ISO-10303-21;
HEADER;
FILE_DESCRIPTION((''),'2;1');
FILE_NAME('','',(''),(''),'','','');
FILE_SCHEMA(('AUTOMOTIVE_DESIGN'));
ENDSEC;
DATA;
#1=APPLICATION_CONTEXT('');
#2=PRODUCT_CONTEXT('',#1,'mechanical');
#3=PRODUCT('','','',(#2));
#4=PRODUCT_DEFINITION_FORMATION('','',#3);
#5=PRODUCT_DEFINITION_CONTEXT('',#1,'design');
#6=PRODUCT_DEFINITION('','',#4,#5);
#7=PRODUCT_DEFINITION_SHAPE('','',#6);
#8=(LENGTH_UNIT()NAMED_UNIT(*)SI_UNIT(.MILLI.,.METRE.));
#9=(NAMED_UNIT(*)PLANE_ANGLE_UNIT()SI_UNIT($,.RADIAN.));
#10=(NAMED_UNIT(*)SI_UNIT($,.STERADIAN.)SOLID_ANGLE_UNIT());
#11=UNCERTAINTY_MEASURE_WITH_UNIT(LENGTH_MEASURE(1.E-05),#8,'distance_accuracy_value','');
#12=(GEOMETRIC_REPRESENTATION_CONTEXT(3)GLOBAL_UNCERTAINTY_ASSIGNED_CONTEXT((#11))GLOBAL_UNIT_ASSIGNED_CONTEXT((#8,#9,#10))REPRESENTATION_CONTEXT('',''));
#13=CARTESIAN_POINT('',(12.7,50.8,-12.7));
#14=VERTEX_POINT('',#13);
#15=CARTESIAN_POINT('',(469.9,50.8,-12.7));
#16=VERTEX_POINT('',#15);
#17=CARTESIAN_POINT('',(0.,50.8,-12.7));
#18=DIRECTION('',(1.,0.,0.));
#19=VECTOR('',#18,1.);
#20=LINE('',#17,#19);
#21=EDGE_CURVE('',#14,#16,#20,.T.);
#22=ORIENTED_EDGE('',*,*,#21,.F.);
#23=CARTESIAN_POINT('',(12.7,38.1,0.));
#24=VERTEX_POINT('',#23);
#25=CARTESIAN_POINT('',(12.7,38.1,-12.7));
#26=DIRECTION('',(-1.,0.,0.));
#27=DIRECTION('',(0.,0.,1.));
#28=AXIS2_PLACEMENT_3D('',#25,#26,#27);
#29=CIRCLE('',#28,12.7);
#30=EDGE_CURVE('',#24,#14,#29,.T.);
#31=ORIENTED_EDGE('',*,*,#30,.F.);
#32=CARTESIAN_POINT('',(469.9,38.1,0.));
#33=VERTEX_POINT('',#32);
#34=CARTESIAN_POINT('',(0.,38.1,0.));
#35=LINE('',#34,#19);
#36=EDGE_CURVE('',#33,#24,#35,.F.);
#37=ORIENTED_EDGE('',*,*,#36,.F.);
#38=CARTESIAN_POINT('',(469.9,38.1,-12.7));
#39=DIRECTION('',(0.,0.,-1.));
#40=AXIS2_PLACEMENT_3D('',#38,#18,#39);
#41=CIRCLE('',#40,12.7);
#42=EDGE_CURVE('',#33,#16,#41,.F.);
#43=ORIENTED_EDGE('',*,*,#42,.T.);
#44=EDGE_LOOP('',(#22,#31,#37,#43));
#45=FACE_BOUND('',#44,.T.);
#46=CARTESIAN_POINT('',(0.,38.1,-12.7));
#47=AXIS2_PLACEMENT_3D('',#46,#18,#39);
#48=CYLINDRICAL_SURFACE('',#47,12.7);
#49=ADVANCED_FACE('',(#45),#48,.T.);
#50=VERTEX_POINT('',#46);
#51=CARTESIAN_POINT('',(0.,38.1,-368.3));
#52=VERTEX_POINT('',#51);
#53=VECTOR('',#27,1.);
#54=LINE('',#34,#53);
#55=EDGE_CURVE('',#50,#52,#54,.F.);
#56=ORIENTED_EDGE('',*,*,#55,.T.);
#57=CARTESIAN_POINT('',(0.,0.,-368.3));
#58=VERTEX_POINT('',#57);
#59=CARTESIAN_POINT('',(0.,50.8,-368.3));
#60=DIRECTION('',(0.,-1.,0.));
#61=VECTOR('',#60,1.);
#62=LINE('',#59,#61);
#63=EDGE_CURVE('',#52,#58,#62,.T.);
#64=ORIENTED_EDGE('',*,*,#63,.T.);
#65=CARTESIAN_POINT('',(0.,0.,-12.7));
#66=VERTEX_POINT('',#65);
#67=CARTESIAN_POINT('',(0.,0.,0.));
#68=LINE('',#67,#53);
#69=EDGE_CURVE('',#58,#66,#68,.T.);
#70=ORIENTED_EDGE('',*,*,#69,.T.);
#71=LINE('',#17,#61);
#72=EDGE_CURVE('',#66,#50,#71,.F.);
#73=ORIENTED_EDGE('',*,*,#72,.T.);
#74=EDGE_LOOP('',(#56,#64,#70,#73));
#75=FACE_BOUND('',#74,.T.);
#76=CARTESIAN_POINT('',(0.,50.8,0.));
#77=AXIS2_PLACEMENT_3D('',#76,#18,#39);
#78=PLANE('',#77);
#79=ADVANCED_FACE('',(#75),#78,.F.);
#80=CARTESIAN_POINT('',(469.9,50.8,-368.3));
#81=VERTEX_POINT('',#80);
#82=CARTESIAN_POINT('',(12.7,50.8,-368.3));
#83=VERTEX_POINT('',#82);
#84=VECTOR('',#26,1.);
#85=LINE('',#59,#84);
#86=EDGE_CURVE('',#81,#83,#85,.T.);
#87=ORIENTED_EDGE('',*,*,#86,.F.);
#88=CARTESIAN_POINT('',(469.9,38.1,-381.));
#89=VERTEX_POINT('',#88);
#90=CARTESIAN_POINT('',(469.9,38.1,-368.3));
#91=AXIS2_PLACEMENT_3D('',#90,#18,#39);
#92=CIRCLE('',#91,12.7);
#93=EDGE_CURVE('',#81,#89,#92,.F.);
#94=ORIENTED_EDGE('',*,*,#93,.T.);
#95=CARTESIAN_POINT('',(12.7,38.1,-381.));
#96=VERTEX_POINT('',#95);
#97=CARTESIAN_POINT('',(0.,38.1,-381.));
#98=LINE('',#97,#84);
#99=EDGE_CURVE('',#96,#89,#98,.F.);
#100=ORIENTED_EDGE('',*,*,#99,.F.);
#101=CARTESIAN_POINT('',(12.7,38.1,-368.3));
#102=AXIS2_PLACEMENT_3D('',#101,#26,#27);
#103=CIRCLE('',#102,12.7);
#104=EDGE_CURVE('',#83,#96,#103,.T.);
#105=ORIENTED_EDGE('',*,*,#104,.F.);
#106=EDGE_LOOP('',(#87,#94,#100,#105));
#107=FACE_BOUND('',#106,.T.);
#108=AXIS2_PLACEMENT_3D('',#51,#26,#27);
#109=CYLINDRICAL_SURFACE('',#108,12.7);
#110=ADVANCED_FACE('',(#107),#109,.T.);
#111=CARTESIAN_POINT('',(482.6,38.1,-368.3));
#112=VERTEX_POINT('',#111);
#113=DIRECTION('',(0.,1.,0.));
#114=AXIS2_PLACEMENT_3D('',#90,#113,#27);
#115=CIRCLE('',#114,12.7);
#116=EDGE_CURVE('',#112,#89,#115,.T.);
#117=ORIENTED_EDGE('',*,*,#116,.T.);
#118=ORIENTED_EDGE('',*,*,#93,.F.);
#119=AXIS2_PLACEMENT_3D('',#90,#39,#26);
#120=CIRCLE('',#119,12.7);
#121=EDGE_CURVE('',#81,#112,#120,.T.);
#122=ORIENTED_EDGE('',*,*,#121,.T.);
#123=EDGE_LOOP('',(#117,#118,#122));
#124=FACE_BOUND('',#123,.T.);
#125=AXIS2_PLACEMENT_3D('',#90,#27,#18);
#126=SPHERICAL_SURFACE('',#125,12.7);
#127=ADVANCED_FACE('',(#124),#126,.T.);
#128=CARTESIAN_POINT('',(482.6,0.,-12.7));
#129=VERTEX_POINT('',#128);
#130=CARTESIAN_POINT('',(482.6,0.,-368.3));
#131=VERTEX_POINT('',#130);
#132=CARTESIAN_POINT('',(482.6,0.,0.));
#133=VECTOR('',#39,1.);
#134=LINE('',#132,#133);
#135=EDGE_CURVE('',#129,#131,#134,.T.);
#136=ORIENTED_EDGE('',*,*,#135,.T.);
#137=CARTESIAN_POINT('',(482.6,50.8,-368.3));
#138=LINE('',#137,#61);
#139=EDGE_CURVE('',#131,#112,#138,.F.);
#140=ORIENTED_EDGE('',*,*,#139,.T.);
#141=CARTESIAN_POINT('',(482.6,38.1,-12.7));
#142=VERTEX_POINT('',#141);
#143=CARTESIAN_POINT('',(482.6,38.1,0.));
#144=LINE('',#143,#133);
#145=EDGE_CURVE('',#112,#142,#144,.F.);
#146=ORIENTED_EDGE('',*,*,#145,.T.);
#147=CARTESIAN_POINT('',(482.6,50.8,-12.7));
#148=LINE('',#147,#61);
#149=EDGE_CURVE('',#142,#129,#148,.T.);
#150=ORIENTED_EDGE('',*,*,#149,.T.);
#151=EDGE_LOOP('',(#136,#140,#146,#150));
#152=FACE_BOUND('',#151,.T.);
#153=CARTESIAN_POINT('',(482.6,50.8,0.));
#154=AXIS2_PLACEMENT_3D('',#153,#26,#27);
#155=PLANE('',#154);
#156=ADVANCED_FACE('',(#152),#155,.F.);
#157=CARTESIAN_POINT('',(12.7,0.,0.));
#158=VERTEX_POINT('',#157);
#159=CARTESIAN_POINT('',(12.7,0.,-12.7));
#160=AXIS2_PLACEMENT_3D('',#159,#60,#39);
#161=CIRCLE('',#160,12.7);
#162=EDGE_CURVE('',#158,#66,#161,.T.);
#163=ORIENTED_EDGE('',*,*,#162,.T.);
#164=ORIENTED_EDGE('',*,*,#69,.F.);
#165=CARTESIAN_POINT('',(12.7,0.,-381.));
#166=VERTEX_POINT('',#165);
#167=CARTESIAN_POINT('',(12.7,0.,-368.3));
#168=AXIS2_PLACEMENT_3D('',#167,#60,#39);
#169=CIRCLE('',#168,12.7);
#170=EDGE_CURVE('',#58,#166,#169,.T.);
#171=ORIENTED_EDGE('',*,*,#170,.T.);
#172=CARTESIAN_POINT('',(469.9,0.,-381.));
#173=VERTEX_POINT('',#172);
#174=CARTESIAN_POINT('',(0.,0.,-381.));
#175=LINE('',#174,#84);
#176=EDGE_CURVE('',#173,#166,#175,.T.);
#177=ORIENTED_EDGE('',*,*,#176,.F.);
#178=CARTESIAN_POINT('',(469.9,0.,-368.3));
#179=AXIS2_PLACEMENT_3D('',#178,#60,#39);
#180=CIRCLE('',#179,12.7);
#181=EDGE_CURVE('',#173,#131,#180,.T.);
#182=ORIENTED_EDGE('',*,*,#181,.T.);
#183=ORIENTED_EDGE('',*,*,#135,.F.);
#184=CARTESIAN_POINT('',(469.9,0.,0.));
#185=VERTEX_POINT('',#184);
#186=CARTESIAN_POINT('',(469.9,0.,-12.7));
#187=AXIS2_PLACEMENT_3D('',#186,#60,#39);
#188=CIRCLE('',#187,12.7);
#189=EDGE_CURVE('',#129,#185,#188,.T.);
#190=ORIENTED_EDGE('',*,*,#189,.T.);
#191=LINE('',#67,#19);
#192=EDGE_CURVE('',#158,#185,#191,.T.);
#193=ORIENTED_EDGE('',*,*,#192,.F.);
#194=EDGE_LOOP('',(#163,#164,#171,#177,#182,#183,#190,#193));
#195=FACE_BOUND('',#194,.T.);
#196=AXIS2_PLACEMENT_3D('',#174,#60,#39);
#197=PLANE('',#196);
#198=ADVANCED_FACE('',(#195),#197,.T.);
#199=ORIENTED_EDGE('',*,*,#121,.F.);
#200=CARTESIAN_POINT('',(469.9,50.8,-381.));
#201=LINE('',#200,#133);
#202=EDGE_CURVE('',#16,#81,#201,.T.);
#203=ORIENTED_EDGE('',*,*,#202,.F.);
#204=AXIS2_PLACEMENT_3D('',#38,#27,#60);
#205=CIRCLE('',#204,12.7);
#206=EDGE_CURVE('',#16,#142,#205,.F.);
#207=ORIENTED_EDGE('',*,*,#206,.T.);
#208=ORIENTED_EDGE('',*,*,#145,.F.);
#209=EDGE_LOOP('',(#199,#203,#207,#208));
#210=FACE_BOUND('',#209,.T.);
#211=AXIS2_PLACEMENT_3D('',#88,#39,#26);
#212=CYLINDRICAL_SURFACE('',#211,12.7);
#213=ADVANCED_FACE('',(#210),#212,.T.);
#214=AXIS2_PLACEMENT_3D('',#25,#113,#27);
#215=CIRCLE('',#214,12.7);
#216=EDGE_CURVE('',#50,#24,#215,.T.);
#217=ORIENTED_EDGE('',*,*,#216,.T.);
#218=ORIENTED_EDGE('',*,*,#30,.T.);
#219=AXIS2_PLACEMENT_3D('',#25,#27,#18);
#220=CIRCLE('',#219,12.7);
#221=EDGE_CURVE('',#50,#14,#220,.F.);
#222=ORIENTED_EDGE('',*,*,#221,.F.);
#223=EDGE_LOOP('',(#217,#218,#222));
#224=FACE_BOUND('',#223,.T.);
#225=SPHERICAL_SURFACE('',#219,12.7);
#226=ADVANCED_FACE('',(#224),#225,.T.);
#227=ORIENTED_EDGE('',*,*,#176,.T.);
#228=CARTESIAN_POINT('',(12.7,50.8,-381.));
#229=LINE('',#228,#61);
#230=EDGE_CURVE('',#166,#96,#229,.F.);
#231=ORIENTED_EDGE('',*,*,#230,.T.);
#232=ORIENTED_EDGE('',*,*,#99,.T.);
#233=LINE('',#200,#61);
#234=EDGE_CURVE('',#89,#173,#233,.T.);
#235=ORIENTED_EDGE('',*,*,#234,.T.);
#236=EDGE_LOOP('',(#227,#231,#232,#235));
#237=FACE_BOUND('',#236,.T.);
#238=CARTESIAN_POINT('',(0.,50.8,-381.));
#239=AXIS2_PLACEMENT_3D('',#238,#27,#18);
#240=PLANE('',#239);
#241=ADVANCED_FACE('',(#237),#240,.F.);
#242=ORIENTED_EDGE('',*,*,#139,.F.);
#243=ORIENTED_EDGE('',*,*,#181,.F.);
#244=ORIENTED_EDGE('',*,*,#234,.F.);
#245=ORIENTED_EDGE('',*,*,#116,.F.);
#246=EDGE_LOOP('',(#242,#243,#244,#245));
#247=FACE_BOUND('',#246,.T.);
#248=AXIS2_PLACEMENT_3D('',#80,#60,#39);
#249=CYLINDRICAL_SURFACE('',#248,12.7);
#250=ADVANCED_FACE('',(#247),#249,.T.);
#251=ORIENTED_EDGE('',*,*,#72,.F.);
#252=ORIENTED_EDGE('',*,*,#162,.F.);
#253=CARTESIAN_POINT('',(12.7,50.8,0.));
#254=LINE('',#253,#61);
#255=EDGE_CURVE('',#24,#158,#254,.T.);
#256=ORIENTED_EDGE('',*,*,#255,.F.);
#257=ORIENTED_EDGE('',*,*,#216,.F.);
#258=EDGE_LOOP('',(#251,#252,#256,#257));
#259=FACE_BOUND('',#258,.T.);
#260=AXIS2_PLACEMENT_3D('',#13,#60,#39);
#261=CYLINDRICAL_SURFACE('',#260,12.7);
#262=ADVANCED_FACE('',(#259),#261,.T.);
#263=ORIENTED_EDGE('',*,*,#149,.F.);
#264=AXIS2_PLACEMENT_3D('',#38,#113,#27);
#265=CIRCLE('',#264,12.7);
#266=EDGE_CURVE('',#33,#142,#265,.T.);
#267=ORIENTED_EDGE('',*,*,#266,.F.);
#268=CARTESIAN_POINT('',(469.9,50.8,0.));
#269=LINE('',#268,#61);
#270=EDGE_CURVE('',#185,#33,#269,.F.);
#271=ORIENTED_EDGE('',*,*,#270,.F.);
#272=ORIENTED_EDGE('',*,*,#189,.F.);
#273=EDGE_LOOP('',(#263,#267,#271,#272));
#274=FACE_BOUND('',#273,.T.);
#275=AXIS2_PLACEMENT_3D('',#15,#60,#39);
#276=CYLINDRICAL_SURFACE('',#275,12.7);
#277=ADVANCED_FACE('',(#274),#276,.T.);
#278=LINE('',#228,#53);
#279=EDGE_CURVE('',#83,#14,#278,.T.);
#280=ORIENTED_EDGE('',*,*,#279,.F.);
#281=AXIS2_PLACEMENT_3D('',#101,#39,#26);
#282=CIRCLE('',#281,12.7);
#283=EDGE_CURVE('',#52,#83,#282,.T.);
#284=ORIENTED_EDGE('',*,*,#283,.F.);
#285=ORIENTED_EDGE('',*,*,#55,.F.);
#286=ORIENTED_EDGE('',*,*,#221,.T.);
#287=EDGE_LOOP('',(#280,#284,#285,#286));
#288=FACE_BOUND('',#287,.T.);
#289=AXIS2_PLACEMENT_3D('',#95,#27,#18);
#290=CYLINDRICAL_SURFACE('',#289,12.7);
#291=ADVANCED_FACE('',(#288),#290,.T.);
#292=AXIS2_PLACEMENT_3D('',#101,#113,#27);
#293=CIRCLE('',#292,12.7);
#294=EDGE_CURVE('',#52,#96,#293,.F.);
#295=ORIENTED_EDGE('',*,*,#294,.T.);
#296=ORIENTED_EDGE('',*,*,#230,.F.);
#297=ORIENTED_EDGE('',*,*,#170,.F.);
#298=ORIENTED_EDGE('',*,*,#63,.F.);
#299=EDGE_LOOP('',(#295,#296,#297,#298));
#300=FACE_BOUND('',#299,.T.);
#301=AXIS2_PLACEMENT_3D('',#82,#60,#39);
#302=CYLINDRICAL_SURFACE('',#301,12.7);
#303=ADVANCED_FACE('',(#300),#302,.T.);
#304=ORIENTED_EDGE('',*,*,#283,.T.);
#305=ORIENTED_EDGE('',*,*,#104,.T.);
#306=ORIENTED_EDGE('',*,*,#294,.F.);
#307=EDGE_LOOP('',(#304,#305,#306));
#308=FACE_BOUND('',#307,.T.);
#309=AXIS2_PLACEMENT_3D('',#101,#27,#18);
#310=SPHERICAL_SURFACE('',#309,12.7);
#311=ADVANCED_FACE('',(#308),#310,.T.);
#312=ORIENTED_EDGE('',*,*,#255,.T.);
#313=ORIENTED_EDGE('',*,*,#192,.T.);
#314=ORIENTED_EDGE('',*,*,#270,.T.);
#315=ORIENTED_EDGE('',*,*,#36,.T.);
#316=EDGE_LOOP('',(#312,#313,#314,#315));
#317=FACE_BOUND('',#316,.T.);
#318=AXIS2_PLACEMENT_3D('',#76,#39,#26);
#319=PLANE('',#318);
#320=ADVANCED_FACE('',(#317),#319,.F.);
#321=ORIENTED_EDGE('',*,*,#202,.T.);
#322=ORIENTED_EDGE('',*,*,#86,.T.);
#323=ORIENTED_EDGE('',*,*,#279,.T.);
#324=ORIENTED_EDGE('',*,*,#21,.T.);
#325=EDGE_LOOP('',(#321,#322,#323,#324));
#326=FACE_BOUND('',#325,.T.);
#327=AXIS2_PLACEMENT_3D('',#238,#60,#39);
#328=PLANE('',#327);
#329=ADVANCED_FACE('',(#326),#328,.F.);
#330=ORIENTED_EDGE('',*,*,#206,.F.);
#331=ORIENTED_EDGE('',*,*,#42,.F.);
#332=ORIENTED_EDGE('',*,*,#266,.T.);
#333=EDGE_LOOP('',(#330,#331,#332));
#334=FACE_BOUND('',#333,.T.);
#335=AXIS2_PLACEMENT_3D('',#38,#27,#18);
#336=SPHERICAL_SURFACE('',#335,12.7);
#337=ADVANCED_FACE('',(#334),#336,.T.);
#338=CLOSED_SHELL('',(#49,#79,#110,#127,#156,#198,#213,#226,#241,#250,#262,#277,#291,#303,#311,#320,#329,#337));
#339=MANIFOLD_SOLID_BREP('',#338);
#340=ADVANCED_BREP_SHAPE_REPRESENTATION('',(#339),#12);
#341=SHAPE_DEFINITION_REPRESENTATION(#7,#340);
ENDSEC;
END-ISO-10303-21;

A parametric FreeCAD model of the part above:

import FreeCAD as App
import Part
import Sketcher
Q = App.Units.Quantity


def edges_at(feature, points):
    """Names of the edges that pass closest to the given points."""
    edges = feature.Shape.Edges
    near = lambda p: min(range(len(edges)), key=lambda i: edges[i].distToShape(Part.Vertex(*p))[0])
    return sorted({f"Edge{near(p) + 1}" for p in points})


def add_polygon(sketch, points):
    """Adds a closed chain of lines whose ends are joined by coincident constraints."""
    first, n = sketch.GeometryCount, len(points)
    for a, b in zip(points, points[1:] + points[:1]):
        sketch.addGeometry(Part.LineSegment(App.Vector(*a, 0), App.Vector(*b, 0)), False)
    for i in range(n):
        sketch.addConstraint(Sketcher.Constraint("Coincident", first + i, 2, first + (i + 1) % n, 1))

doc = App.newDocument("Part")
body = doc.addObject("PartDesign::Body", "Body")

# Sketch on XZ plane
sketch1 = doc.addObject("Sketcher::SketchObject", "Sketch")
body.addObject(sketch1)
sketch1.AttachmentSupport = (doc.XZ_Plane, [""])
sketch1.MapMode = "FlatFace"
add_polygon(sketch1, [(0, -381), (0, 0), (482.6, 0), (482.6, -381)])  # lines 0-3
sketch1.addConstraint([
    Sketcher.Constraint("Vertical", 0),
    Sketcher.Constraint("Horizontal", 1),
    Sketcher.Constraint("Vertical", 2),
    Sketcher.Constraint("Horizontal", 3),
    Sketcher.Constraint("Coincident", 0, 2, -1, 1),
    Sketcher.Constraint("DistanceX", 1, 1, 1, 2, Q("19 in")),
    Sketcher.Constraint("DistanceY", 0, 1, 0, 2, Q("15 in")),
])
pad1 = doc.addObject("PartDesign::Pad", "Pad")
body.addObject(pad1)
pad1.Profile = sketch1
pad1.Length = Q("2 in")
pad1.Reversed = True
doc.recompute()

fillet = doc.addObject("PartDesign::Fillet", "Fillet")
body.addObject(fillet)
fillet.Base = (pad1, edges_at(pad1, [
    (482.6, 50.8, -190.5),
    (241.3, 50.8, -381),
    (0, 50.8, -190.5),
    (241.3, 50.8, 0),
    (0, 25.4, -381),
    (482.6, 25.4, -381),
    (482.6, 25.4, 0),
    (0, 25.4, 0),
]))
fillet.Radius = Q("0.5 in")

doc.recompute()
